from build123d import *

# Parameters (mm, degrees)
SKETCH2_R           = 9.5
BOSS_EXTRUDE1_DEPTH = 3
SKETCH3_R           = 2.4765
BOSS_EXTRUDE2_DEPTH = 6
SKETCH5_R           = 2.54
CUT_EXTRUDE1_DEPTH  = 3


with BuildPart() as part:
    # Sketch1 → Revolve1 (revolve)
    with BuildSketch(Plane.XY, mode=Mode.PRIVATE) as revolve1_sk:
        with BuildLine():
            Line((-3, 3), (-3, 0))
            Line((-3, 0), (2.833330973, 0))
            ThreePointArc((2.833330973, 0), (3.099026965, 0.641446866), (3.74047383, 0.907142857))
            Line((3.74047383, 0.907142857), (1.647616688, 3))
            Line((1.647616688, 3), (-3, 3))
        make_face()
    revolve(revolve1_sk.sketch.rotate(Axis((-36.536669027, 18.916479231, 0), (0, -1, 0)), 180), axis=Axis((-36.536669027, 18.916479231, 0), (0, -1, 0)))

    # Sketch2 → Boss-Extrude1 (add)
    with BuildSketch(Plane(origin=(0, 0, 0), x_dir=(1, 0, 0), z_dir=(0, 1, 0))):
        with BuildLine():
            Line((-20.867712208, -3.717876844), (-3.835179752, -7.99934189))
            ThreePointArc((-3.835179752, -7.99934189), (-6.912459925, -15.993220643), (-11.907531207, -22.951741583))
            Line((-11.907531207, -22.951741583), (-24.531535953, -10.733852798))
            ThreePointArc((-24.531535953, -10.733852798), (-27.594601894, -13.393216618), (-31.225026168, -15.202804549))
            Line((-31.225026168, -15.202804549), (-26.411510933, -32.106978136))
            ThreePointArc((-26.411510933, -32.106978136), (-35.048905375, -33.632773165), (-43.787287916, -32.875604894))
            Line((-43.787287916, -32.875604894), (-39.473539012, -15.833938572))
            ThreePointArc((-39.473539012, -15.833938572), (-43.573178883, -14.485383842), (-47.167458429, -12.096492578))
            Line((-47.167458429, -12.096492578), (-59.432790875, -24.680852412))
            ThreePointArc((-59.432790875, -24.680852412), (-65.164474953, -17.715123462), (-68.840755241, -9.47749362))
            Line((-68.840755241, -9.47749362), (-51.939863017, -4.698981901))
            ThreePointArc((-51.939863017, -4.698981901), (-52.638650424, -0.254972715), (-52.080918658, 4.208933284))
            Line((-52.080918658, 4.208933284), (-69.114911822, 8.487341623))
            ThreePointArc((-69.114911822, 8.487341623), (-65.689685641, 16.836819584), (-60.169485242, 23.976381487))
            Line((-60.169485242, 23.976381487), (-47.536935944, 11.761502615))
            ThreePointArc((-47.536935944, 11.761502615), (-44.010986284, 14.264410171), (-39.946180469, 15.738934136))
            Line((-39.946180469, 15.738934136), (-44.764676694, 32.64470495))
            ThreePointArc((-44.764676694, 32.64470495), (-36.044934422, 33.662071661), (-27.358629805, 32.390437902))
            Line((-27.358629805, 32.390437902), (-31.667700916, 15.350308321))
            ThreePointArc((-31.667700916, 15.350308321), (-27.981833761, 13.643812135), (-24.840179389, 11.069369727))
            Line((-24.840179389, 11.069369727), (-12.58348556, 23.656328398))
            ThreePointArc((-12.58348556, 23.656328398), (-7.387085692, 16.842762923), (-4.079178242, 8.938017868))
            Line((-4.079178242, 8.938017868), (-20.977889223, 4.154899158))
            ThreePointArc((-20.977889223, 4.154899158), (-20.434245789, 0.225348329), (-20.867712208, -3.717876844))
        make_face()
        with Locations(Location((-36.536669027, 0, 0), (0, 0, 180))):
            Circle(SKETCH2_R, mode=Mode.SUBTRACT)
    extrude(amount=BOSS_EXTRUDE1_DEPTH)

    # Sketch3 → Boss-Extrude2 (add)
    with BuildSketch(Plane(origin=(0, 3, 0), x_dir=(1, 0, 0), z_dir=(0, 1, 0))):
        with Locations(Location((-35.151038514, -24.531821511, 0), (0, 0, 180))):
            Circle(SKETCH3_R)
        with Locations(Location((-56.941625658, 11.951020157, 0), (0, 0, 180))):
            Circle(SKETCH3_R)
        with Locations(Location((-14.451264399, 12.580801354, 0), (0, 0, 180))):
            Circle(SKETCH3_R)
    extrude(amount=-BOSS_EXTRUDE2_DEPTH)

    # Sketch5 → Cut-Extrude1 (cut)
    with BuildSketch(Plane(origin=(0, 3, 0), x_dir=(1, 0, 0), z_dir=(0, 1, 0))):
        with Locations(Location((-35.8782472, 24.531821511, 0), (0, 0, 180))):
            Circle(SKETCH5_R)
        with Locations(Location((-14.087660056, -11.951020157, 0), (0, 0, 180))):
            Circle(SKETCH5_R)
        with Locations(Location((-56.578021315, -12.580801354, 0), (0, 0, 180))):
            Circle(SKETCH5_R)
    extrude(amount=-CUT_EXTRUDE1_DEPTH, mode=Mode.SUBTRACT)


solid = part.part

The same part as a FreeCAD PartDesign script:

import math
import FreeCAD as App
import Part
import Sketcher

V = App.Vector
Q = App.Units.Quantity

doc = App.newDocument("Part")
body = doc.addObject("PartDesign::Body", "Body")

# Sketch on XY plane
sketch1 = doc.addObject("Sketcher::SketchObject", "Sketch")
body.addObject(sketch1)
sketch1.AttachmentSupport = (doc.XY_Plane, [""])
sketch1.MapMode = "FlatFace"
sketch1.addGeometry(Part.LineSegment(V(-3, 3, 0), V(-3, 0, 0)), False)
sketch1.addGeometry(Part.LineSegment(V(-3, 0, 0), V(2.8, 0, 0)), False)
sketch1.addGeometry(Part.ArcOfCircle(Part.Circle(V(3.7, 0, 0), V(0, 0, 1), 0.9), math.radians(90), math.radians(180)), False)
sketch1.addGeometry(Part.LineSegment(V(3.7, 0.9, 0), V(1.6, 3, 0)), False)
sketch1.addGeometry(Part.LineSegment(V(1.6, 3, 0), V(-3, 3, 0)), False)
sketch1.addGeometry(Part.LineSegment(V(-36.5, 3, 0), V(-36.5, 0, 0)), True)  # axis
sketch1.addConstraint(Sketcher.Constraint("Coincident", 0, 2, 1, 1))
sketch1.addConstraint(Sketcher.Constraint("Coincident", 1, 2, 2, 2))
sketch1.addConstraint(Sketcher.Constraint("Coincident", 2, 1, 3, 1))
sketch1.addConstraint(Sketcher.Constraint("Coincident", 3, 2, 4, 1))
sketch1.addConstraint(Sketcher.Constraint("Coincident", 4, 2, 0, 1))
sketch1.addConstraint(Sketcher.Constraint("Vertical", 0))
sketch1.addConstraint(Sketcher.Constraint("Horizontal", 1))
sketch1.addConstraint(Sketcher.Constraint("Horizontal", 4))
sketch1.addConstraint(Sketcher.Constraint("Vertical", 5))
sketch1.addConstraint(Sketcher.Constraint("PointOnObject", 2, 3, -1))
sketch1.addConstraint(Sketcher.Constraint("PointOnObject", 0, 2, -1))
sketch1.addConstraint(Sketcher.Constraint("PointOnObject", 5, 2, -1))
sketch1.addConstraint(Sketcher.Constraint("Horizontal", 4, 2, 5, 1))
sketch1.addConstraint(Sketcher.Constraint("DistanceY", 0, 2, 0, 1, Q("3 mm")))
sketch1.addConstraint(Sketcher.Constraint("Angle", 3, Q("135 deg")))
sketch1.addConstraint(Sketcher.Constraint("DistanceX", 0, 2, -1, 1, Q("3 mm")))
sketch1.addConstraint(Sketcher.Constraint("DistanceX", 5, 1, 1, 2, Q("39.37 mm")))
sketch1.addConstraint(Sketcher.Constraint("Radius", 2, Q("0.907143 mm")))
sketch1.addConstraint(Sketcher.Constraint("DistanceX", 1, 1, 1, 2, Q("5.833331 mm")))
sketch1.addConstraint(Sketcher.Constraint("DistanceX", 4, 2, 4, 1, Q("4.647617 mm")))
revolution = doc.addObject("PartDesign::Revolution", "Revolution")
body.addObject(revolution)
revolution.Profile = sketch1
revolution.ReferenceAxis = (sketch1, ["Axis0"])
revolution.Angle = 360

# Sketch on XZ plane
sketch2 = doc.addObject("Sketcher::SketchObject", "Sketch001")
body.addObject(sketch2)
sketch2.AttachmentSupport = (doc.XZ_Plane, [""])
sketch2.MapMode = "FlatFace"
sketch2.addGeometry(Part.LineSegment(V(-3.83518, 7.999342, 0), V(-20.867712, 3.717877, 0)), False)
sketch2.addGeometry(Part.ArcOfCircle(Part.Circle(V(-36.536669, 0, 0), V(0, 0, 1), 16.104), math.radians(-14.95167), math.radians(13.348102)), False)
sketch2.addGeometry(Part.LineSegment(V(-20.977889, -4.154899, 0), V(-4.079178, -8.938018, 0)), False)
sketch2.addGeometry(Part.ArcOfCircle(Part.Circle(V(-36.536669, 0, 0), V(0, 0, 1), 33.665663), math.radians(-44.642754), math.radians(-15.396284)), False)
sketch2.addGeometry(Part.LineSegment(V(-12.583486, -23.656328, 0), V(-24.840179, -11.06937, 0)), False)
sketch2.addGeometry(Part.ArcOfCircle(Part.Circle(V(-36.536669, 0, 0), V(0, 0, 1), 16.104), math.radians(-72.40148), math.radians(-43.4221)), False)
sketch2.addGeometry(Part.LineSegment(V(-31.667701, -15.350308, 0), V(-27.35863, -32.390438, 0)), False)
sketch2.addGeometry(Part.ArcOfCircle(Part.Circle(V(-36.536669, 0, 0), V(0, 0, 1), 33.665663), math.radians(-104.146588), math.radians(-74.17958)), False)
sketch2.addGeometry(Part.LineSegment(V(-44.764677, -32.644705, 0), V(-39.94618, -15.738934, 0)), False)
sketch2.addGeometry(Part.ArcOfCircle(Part.Circle(V(-36.536669, 0, 0), V(0, 0, 1), 16.104), math.radians(-133.084536), math.radians(-102.223068)), False)
sketch2.addGeometry(Part.LineSegment(V(-47.536936, -11.761503, 0), V(-60.169485, -23.976381, 0)), False)
sketch2.addGeometry(Part.ArcOfCircle(Part.Circle(V(-36.536669, 0, 0), V(0, 0, 1), 33.665663), math.radians(-165.397785), math.radians(-134.58654)), False)
sketch2.addGeometry(Part.LineSegment(V(-69.114912, -8.487342, 0), V(-52.080919, -4.208933, 0)), False)
sketch2.addGeometry(Part.ArcOfCircle(Part.Circle(V(-36.536669, 0, 0), V(0, 0, 1), 16.104), math.radians(163.034865), math.radians(195.150745)), False)
sketch2.addGeometry(Part.LineSegment(V(-51.939863, 4.698982, 0), V(-68.840755, 9.477494, 0)), False)
sketch2.addGeometry(Part.ArcOfCircle(Part.Circle(V(-36.536669, 0, 0), V(0, 0, 1), 33.665663), math.radians(132.8517), math.radians(163.649169)), False)
sketch2.addGeometry(Part.LineSegment(V(-59.432791, 24.680852, 0), V(-47.167458, 12.096493, 0)), False)
sketch2.addGeometry(Part.ArcOfCircle(Part.Circle(V(-36.536669, 0, 0), V(0, 0, 1), 16.104), math.radians(100.507776), math.radians(131.310053)), False)
sketch2.addGeometry(Part.LineSegment(V(-39.473539, 15.833939, 0), V(-43.787288, 32.875605, 0)), False)
sketch2.addGeometry(Part.ArcOfCircle(Part.Circle(V(-36.536669, 0, 0), V(0, 0, 1), 33.665663), math.radians(72.49697), math.radians(102.437314)), False)
sketch2.addGeometry(Part.LineSegment(V(-26.411511, 32.106978, 0), V(-31.225026, 15.202805, 0)), False)
sketch2.addGeometry(Part.ArcOfCircle(Part.Circle(V(-36.536669, 0, 0), V(0, 0, 1), 16.104), math.radians(41.800066), math.radians(70.741314)), False)
sketch2.addGeometry(Part.LineSegment(V(-24.531536, 10.733853, 0), V(-11.907531, 22.951742, 0)), False)
sketch2.addGeometry(Part.ArcOfCircle(Part.Circle(V(-36.536669, 0, 0), V(0, 0, 1), 33.665663), math.radians(13.7456), math.radians(42.980955)), False)
sketch2.addGeometry(Part.Circle(V(-36.536669, 0, 0), V(0, 0, 1), 9.5), False)
sketch2.addConstraint(Sketcher.Constraint("Coincident", 0, 2, 1, 2))
sketch2.addConstraint(Sketcher.Constraint("Coincident", 1, 1, 2, 1))
sketch2.addConstraint(Sketcher.Constraint("Coincident", 2, 2, 3, 2))
sketch2.addConstraint(Sketcher.Constraint("Coincident", 3, 1, 4, 1))
sketch2.addConstraint(Sketcher.Constraint("Coincident", 4, 2, 5, 2))
sketch2.addConstraint(Sketcher.Constraint("Coincident", 5, 1, 6, 1))
sketch2.addConstraint(Sketcher.Constraint("Coincident", 6, 2, 7, 2))
sketch2.addConstraint(Sketcher.Constraint("Coincident", 7, 1, 8, 1))
sketch2.addConstraint(Sketcher.Constraint("Coincident", 8, 2, 9, 2))
sketch2.addConstraint(Sketcher.Constraint("Coincident", 9, 1, 10, 1))
sketch2.addConstraint(Sketcher.Constraint("Coincident", 10, 2, 11, 2))
sketch2.addConstraint(Sketcher.Constraint("Coincident", 11, 1, 12, 1))
sketch2.addConstraint(Sketcher.Constraint("Coincident", 12, 2, 13, 2))
sketch2.addConstraint(Sketcher.Constraint("Coincident", 13, 1, 14, 1))
sketch2.addConstraint(Sketcher.Constraint("Coincident", 14, 2, 15, 2))
sketch2.addConstraint(Sketcher.Constraint("Coincident", 15, 1, 16, 1))
sketch2.addConstraint(Sketcher.Constraint("Coincident", 16, 2, 17, 2))
sketch2.addConstraint(Sketcher.Constraint("Coincident", 17, 1, 18, 1))
sketch2.addConstraint(Sketcher.Constraint("Coincident", 18, 2, 19, 2))
sketch2.addConstraint(Sketcher.Constraint("Coincident", 19, 1, 20, 1))
sketch2.addConstraint(Sketcher.Constraint("Coincident", 20, 2, 21, 2))
sketch2.addConstraint(Sketcher.Constraint("Coincident", 21, 1, 22, 1))
sketch2.addConstraint(Sketcher.Constraint("Coincident", 22, 2, 23, 2))
sketch2.addConstraint(Sketcher.Constraint("Coincident", 23, 1, 0, 1))
sketch2.addConstraint(Sketcher.Constraint("Coincident", 3, 3, 1, 3))
sketch2.addConstraint(Sketcher.Constraint("Coincident", 5, 3, 1, 3))
sketch2.addConstraint(Sketcher.Constraint("Coincident", 7, 3, 1, 3))
sketch2.addConstraint(Sketcher.Constraint("Coincident", 9, 3, 1, 3))
sketch2.addConstraint(Sketcher.Constraint("Coincident", 11, 3, 1, 3))
sketch2.addConstraint(Sketcher.Constraint("Coincident", 13, 3, 1, 3))
sketch2.addConstraint(Sketcher.Constraint("Coincident", 15, 3, 1, 3))
sketch2.addConstraint(Sketcher.Constraint("Coincident", 17, 3, 1, 3))
sketch2.addConstraint(Sketcher.Constraint("Coincident", 19, 3, 1, 3))
sketch2.addConstraint(Sketcher.Constraint("Coincident", 21, 3, 1, 3))
sketch2.addConstraint(Sketcher.Constraint("Coincident", 23, 3, 1, 3))
sketch2.addConstraint(Sketcher.Constraint("Coincident", 24, 3, 1, 3))
sketch2.addConstraint(Sketcher.Constraint("Equal", 1, 5))
sketch2.addConstraint(Sketcher.Constraint("Equal", 3, 7))
sketch2.addConstraint(Sketcher.Constraint("Equal", 5, 9))
sketch2.addConstraint(Sketcher.Constraint("Equal", 7, 11))
sketch2.addConstraint(Sketcher.Constraint("Equal", 9, 13))
sketch2.addConstraint(Sketcher.Constraint("Equal", 11, 15))
sketch2.addConstraint(Sketcher.Constraint("Equal", 13, 17))
sketch2.addConstraint(Sketcher.Constraint("Equal", 15, 19))
sketch2.addConstraint(Sketcher.Constraint("Equal", 17, 21))
sketch2.addConstraint(Sketcher.Constraint("Equal", 19, 23))
sketch2.addConstraint(Sketcher.Constraint("PointOnObject", 1, 3, -1))
sketch2.addConstraint(Sketcher.Constraint("Diameter", 24, Q("19 mm")))
sketch2.addConstraint(Sketcher.Constraint("Radius", 1, Q("16.104 mm")))
sketch2.addConstraint(Sketcher.Constraint("Radius", 3, Q("33.665663 mm")))
sketch2.addConstraint(Sketcher.Constraint("DistanceX", 8, 2, 4, 2, Q("15.106001 mm")))
sketch2.addConstraint(Sketcher.Constraint("DistanceX", 2, 2, 23, 1, Q("0.243998 mm")))
sketch2.addConstraint(Sketcher.Constraint("DistanceY", 1, 1, -1, 1, Q("4.154899 mm")))
sketch2.addConstraint(Sketcher.Constraint("DistanceX", 5, 1, -1, 1, Q("31.667701 mm")))
sketch2.addConstraint(Sketcher.Constraint("DistanceX", 19, 1, 0, 2, Q("5.543799 mm")))
sketch2.addConstraint(Sketcher.Constraint("DistanceY", 0, 2, 19, 1, Q("28.389101 mm")))
sketch2.addConstraint(Sketcher.Constraint("DistanceY", 23, 1, 22, 2, Q("14.9524 mm")))
sketch2.addConstraint(Sketcher.Constraint("Distance", 6, Q("17.576522 mm")))
sketch2.addConstraint(Sketcher.Constraint("Distance", 8, Q("17.57905 mm")))
sketch2.addConstraint(Sketcher.Constraint("Distance", 18, Q("17.579159 mm")))
sketch2.addConstraint(Sketcher.Constraint("Distance", 20, Q("17.576149 mm")))
sketch2.addConstraint(Sketcher.Constraint("Distance", 22, Q("17.568219 mm")))
sketch2.addConstraint(Sketcher.Constraint("DistanceX", 1, 3, -1, 1, Q("36.536669 mm")))
sketch2.addConstraint(Sketcher.Constraint("DistanceX", 2, 2, -1, 1, Q("4.079178 mm")))
sketch2.addConstraint(Sketcher.Constraint("DistanceY", 3, 1, -1, 1, Q("23.656328 mm")))
sketch2.addConstraint(Sketcher.Constraint("DistanceX", 4, 2, -1, 1, Q("24.840179 mm")))
sketch2.addConstraint(Sketcher.Constraint("DistanceY", 10, 2, -1, 1, Q("23.976381 mm")))
sketch2.addConstraint(Sketcher.Constraint("DistanceX", 11, 1, -1, 1, Q("69.114912 mm")))
sketch2.addConstraint(Sketcher.Constraint("DistanceX", 12, 2, -1, 1, Q("52.080919 mm")))
sketch2.addConstraint(Sketcher.Constraint("DistanceY", -1, 1, 13, 1, Q("4.698982 mm")))
sketch2.addConstraint(Sketcher.Constraint("DistanceX", 15, 1, -1, 1, Q("59.432791 mm")))
sketch2.addConstraint(Sketcher.Constraint("DistanceX", 16, 2, -1, 1, Q("47.167458 mm")))
sketch2.addConstraint(Sketcher.Constraint("DistanceX", 17, 1, -1, 1, Q("39.473539 mm")))
sketch2.addConstraint(Sketcher.Constraint("DistanceY", 8, 2, 9, 1, Q("3.977432 mm")))
sketch2.addConstraint(Sketcher.Constraint("DistanceY", 13, 1, 14, 2, Q("4.778512 mm")))
pad1 = doc.addObject("PartDesign::Pad", "Pad")
body.addObject(pad1)
pad1.Profile = sketch2
pad1.Length = 3
pad1.Reversed = True

# Sketch on XZ plane
sketch3 = doc.addObject("Sketcher::SketchObject", "Sketch002")
body.addObject(sketch3)
sketch3.AttachmentSupport = (doc.XZ_Plane, [""])
sketch3.MapMode = "FlatFace"
sketch3.AttachmentOffset = App.Placement(V(0, 0, -3), App.Rotation())
sketch3.addGeometry(Part.Circle(V(-35.2, 24.5, 0), V(0, 0, 1), 2.5), False)
sketch3.addGeometry(Part.Circle(V(-56.9, -12, 0), V(0, 0, 1), 2.5), False)
sketch3.addGeometry(Part.Circle(V(-14.5, -12.6, 0), V(0, 0, 1), 2.5), False)
sketch3.addConstraint(Sketcher.Constraint("Equal", 0, 1))
sketch3.addConstraint(Sketcher.Constraint("Equal", 1, 2))
sketch3.addConstraint(Sketcher.Constraint("Diameter", 0, Q("4.953 mm")))
sketch3.addConstraint(Sketcher.Constraint("DistanceY", 2, 3, -1, 1, Q("12.580801 mm")))
sketch3.addConstraint(Sketcher.Constraint("DistanceX", 0, 3, -1, 1, Q("35.151039 mm")))
sketch3.addConstraint(Sketcher.Constraint("DistanceY", -1, 1, 0, 3, Q("24.531822 mm")))
sketch3.addConstraint(Sketcher.Constraint("DistanceY", 1, 3, -1, 1, Q("11.95102 mm")))
sketch3.addConstraint(Sketcher.Constraint("DistanceX", 1, 3, 2, 3, Q("42.490361 mm")))
sketch3.addConstraint(Sketcher.Constraint("DistanceX", 1, 3, -1, 1, Q("56.941626 mm")))
pad2 = doc.addObject("PartDesign::Pad", "Pad001")
body.addObject(pad2)
pad2.Profile = sketch3
pad2.Length = 6

# Sketch on XZ plane
sketch4 = doc.addObject("Sketcher::SketchObject", "Sketch003")
body.addObject(sketch4)
sketch4.AttachmentSupport = (doc.XZ_Plane, [""])
sketch4.MapMode = "FlatFace"
sketch4.AttachmentOffset = App.Placement(V(0, 0, -3), App.Rotation())
sketch4.addGeometry(Part.Circle(V(-35.9, -24.5, 0), V(0, 0, 1), 2.5), False)
sketch4.addGeometry(Part.Circle(V(-14.1, 12, 0), V(0, 0, 1), 2.5), False)
sketch4.addGeometry(Part.Circle(V(-56.6, 12.6, 0), V(0, 0, 1), 2.5), False)
sketch4.addConstraint(Sketcher.Constraint("Equal", 0, 1))
sketch4.addConstraint(Sketcher.Constraint("Equal", 1, 2))
sketch4.addConstraint(Sketcher.Constraint("Diameter", 0, Q("5.08 mm")))
sketch4.addConstraint(Sketcher.Constraint("DistanceY", -1, 1, 2, 3, Q("12.580801 mm")))
sketch4.addConstraint(Sketcher.Constraint("DistanceY", 0, 3, -1, 1, Q("24.531822 mm")))
sketch4.addConstraint(Sketcher.Constraint("DistanceX", 1, 3, -1, 1, Q("14.08766 mm")))
sketch4.addConstraint(Sketcher.Constraint("DistanceY", -1, 1, 1, 3, Q("11.95102 mm")))
sketch4.addConstraint(Sketcher.Constraint("DistanceX", 2, 3, -1, 1, Q("56.578021 mm")))
sketch4.addConstraint(Sketcher.Constraint("DistanceX", 0, 3, -1, 1, Q("35.878247 mm")))
pocket1 = doc.addObject("PartDesign::Pocket", "Pocket")
body.addObject(pocket1)
pocket1.Profile = sketch4
pocket1.Length = 3
pocket1.Reversed = True

doc.recompute()
